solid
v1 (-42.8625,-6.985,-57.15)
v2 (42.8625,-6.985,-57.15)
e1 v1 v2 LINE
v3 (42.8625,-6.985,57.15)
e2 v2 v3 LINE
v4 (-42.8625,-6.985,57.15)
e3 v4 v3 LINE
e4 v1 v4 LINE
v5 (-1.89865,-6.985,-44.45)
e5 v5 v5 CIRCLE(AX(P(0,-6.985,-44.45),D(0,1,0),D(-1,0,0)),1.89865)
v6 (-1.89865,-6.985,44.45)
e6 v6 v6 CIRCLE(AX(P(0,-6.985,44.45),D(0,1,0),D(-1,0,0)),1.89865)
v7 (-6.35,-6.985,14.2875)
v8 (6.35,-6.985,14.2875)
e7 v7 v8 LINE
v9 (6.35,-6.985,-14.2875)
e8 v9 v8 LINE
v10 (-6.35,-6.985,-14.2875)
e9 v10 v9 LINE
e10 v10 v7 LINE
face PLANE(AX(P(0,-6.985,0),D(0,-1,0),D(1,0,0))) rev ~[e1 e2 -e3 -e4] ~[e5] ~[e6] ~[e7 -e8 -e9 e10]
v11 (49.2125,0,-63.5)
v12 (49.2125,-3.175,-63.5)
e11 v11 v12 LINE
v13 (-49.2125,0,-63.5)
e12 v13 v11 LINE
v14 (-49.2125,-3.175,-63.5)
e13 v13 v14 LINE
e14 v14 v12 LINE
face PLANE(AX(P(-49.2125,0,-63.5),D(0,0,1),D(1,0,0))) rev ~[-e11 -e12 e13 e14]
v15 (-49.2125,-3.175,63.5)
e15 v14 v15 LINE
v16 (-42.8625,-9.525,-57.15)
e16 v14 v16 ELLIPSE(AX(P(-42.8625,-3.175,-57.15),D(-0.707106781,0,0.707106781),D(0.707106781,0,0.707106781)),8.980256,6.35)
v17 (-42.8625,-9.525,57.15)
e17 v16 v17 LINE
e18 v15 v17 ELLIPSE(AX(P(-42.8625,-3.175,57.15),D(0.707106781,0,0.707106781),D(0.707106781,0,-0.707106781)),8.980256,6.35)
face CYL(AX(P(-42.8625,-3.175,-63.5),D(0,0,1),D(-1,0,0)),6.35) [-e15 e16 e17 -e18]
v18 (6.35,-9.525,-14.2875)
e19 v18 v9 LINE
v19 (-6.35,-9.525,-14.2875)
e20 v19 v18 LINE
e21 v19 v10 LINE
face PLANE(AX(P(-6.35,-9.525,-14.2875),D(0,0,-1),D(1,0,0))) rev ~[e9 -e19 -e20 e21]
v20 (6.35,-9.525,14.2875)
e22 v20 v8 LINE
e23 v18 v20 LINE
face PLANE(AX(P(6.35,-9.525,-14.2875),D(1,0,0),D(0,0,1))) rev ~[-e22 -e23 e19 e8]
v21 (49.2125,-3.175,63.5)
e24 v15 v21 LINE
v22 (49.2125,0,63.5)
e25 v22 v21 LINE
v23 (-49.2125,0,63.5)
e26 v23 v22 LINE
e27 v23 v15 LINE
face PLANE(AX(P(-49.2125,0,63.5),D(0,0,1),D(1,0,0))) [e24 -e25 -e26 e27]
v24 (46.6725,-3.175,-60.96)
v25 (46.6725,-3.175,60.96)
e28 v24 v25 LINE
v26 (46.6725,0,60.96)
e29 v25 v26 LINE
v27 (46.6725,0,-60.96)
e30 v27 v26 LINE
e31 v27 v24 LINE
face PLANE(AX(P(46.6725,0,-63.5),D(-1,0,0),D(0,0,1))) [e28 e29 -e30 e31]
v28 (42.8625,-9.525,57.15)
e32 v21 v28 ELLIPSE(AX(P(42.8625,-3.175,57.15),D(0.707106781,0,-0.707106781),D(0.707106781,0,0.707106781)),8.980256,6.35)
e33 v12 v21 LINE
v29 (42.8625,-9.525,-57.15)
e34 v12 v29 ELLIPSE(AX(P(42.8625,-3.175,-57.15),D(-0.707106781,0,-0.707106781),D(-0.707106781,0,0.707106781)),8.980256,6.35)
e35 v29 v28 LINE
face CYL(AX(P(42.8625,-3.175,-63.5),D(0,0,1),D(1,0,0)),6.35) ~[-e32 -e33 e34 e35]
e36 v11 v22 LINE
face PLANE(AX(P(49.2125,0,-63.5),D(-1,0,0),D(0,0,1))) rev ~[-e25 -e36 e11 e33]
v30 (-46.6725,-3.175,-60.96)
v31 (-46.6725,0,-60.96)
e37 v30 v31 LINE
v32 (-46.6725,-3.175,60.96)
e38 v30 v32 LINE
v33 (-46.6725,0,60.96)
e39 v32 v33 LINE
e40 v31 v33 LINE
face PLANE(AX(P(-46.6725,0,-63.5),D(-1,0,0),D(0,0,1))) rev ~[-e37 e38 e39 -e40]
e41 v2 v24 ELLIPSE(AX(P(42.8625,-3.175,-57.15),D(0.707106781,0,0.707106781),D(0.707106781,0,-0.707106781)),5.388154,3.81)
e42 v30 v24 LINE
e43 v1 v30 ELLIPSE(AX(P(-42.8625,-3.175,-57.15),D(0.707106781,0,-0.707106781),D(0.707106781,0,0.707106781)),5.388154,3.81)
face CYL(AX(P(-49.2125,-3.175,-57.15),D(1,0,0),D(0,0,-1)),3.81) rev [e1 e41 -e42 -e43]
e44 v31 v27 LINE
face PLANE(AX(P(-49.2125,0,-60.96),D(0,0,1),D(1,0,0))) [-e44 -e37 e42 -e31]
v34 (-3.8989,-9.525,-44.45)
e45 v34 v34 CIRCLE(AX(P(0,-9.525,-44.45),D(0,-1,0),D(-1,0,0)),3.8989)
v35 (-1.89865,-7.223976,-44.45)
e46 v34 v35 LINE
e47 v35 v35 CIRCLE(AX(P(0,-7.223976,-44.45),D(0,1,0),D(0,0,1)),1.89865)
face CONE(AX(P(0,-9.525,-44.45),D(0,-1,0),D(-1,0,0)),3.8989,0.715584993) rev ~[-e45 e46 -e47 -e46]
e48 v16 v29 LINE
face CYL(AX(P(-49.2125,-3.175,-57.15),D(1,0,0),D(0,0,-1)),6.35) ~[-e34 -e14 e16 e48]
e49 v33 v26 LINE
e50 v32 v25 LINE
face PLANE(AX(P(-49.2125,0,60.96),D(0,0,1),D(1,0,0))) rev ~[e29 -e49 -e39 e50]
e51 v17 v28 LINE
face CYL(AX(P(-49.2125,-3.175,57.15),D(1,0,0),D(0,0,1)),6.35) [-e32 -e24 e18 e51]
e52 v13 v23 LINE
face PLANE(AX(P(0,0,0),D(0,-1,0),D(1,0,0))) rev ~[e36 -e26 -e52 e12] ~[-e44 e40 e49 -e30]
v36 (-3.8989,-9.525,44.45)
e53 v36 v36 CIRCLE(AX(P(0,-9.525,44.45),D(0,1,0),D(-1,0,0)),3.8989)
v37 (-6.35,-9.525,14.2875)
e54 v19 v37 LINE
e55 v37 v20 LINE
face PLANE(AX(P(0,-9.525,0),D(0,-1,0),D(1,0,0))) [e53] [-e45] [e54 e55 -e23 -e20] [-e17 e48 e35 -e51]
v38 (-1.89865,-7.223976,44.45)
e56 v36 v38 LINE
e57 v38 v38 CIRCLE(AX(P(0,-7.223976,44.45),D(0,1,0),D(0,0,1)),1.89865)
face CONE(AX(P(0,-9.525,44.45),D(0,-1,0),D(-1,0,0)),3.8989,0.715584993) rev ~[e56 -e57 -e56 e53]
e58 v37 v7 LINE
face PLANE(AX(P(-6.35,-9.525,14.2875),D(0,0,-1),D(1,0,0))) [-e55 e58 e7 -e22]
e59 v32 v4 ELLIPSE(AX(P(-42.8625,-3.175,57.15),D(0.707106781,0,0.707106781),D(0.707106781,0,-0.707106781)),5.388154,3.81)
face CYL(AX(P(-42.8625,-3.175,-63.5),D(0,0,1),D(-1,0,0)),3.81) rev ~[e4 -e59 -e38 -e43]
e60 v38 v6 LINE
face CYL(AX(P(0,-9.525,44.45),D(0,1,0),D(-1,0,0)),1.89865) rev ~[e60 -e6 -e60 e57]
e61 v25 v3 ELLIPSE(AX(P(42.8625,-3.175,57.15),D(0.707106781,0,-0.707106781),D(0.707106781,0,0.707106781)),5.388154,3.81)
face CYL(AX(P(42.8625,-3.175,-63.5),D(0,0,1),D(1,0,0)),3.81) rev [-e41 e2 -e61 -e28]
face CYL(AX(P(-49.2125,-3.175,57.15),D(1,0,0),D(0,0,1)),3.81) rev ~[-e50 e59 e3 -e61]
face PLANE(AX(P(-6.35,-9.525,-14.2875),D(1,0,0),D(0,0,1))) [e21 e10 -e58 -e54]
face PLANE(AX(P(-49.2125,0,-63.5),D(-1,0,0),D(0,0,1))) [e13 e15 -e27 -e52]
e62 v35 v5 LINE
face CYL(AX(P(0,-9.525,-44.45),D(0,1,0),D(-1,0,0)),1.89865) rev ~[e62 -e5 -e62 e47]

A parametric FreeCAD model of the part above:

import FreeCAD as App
import Part
import Sketcher

V = App.Vector
Q = App.Units.Quantity


def edges_at(feature, points):
    """Names of the edges that pass closest to the given points."""
    edges = feature.Shape.Edges
    near = lambda p: min(range(len(edges)), key=lambda i: edges[i].distToShape(Part.Vertex(*p))[0])
    return sorted({f"Edge{near(p) + 1}" for p in points})


def faces_at(feature, points):
    """Names of the faces that lie closest to the given points."""
    faces = feature.Shape.Faces
    near = lambda p: min(range(len(faces)), key=lambda i: faces[i].distToShape(Part.Vertex(*p))[0])
    return sorted({f"Face{near(p) + 1}" for p in points})

doc = App.newDocument("Part")
body = doc.addObject("PartDesign::Body", "Body")

sketch1 = doc.addObject("Sketcher::SketchObject", "Sketch")
body.addObject(sketch1)
sketch1.AttachmentSupport = (doc.XZ_Plane, [""])
sketch1.MapMode = "FlatFace"
sketch1.addGeometry(Part.LineSegment(V(-49.2125, 63.5, 0), V(-49.2125, -63.5, 0)), False)
sketch1.addGeometry(Part.LineSegment(V(-49.2125, -63.5, 0), V(49.2125, -63.5, 0)), False)
sketch1.addGeometry(Part.LineSegment(V(49.2125, -63.5, 0), V(49.2125, 63.5, 0)), False)
sketch1.addGeometry(Part.LineSegment(V(49.2125, 63.5, 0), V(-49.2125, 63.5, 0)), False)
sketch1.addConstraint(Sketcher.Constraint("Coincident", 0, 2, 1, 1))
sketch1.addConstraint(Sketcher.Constraint("Coincident", 1, 2, 2, 1))
sketch1.addConstraint(Sketcher.Constraint("Coincident", 2, 2, 3, 1))
sketch1.addConstraint(Sketcher.Constraint("Coincident", 3, 2, 0, 1))
sketch1.addConstraint(Sketcher.Constraint("Vertical", 0))
sketch1.addConstraint(Sketcher.Constraint("Horizontal", 1))
sketch1.addConstraint(Sketcher.Constraint("Vertical", 2))
sketch1.addConstraint(Sketcher.Constraint("Horizontal", 3))
sketch1.addConstraint(Sketcher.Constraint("Symmetric", 0, 2, 2, 2, -1, 1))
sketch1.addConstraint(Sketcher.Constraint("DistanceY", 0, 2, 0, 1, Q("5 in")))
sketch1.addConstraint(Sketcher.Constraint("DistanceX", 1, 1, 1, 2, Q("3.875 in")))
pad1 = doc.addObject("PartDesign::Pad", "Pad")
body.addObject(pad1)
pad1.Profile = sketch1
pad1.Length = Q("0.375 in")
doc.recompute()

fillet = doc.addObject("PartDesign::Fillet", "Fillet")
body.addObject(fillet)
fillet.Base = (pad1, edges_at(pad1, [
    (49.212, -9.525, 0),
    (0, -9.525, 63.5),
    (-49.212, -9.525, 0),
    (0, -9.525, -63.5),
]))
fillet.Radius = Q("0.25 in")
doc.recompute()

thickness = doc.addObject("PartDesign::Thickness", "Thickness")
body.addObject(thickness)
thickness.Base = (fillet, faces_at(fillet, [(0, 0, 0)]))
thickness.Value = Q("0.1 in")
thickness.Reversed = True
thickness.Join = "Arc"

sketch2 = doc.addObject("Sketcher::SketchObject", "Sketch001")
body.addObject(sketch2)
sketch2.AttachmentSupport = (doc.XZ_Plane, [""])
sketch2.MapMode = "FlatFace"
sketch2.AttachmentOffset = App.Placement(V(0, 0, 0.375 * 25.4), App.Rotation())
sketch2.addGeometry(Part.LineSegment(V(-6.35, 14.2875, 0), V(-6.35, -14.2875, 0)), False)
sketch2.addGeometry(Part.LineSegment(V(-6.35, -14.2875, 0), V(6.35, -14.2875, 0)), False)
sketch2.addGeometry(Part.LineSegment(V(6.35, -14.2875, 0), V(6.35, 14.2875, 0)), False)
sketch2.addGeometry(Part.LineSegment(V(6.35, 14.2875, 0), V(-6.35, 14.2875, 0)), False)
sketch2.addConstraint(Sketcher.Constraint("Coincident", 0, 2, 1, 1))
sketch2.addConstraint(Sketcher.Constraint("Coincident", 1, 2, 2, 1))
sketch2.addConstraint(Sketcher.Constraint("Coincident", 2, 2, 3, 1))
sketch2.addConstraint(Sketcher.Constraint("Coincident", 3, 2, 0, 1))
sketch2.addConstraint(Sketcher.Constraint("Vertical", 0))
sketch2.addConstraint(Sketcher.Constraint("Horizontal", 1))
sketch2.addConstraint(Sketcher.Constraint("Vertical", 2))
sketch2.addConstraint(Sketcher.Constraint("Horizontal", 3))
sketch2.addConstraint(Sketcher.Constraint("Symmetric", 0, 2, 2, 2, -1, 1))
sketch2.addConstraint(Sketcher.Constraint("DistanceX", 1, 1, 1, 2, Q("0.5 in")))
sketch2.addConstraint(Sketcher.Constraint("DistanceY", 0, 2, 0, 1, Q("1.125 in")))
pocket1 = doc.addObject("PartDesign::Pocket", "Pocket")
body.addObject(pocket1)
pocket1.Profile = sketch2
pocket1.Type = "ThroughAll"

sketch3 = doc.addObject("Sketcher::SketchObject", "Sketch002")
body.addObject(sketch3)
sketch3.AttachmentSupport = (doc.XZ_Plane, [""])
sketch3.MapMode = "FlatFace"
sketch3.AttachmentOffset = App.Placement(V(0, 0, 0.375 * 25.4), App.Rotation())
sketch3.addGeometry(Part.Circle(V(0, 44.45, 0), V(0, 0, 1), 1.89865), False)
sketch3.addGeometry(Part.Circle(V(0, -44.45, 0), V(0, 0, 1), 1.89865), False)
sketch3.addConstraint(Sketcher.Constraint("Equal", 0, 1))
sketch3.addConstraint(Sketcher.Constraint("Symmetric", 0, 3, 1, 3, -1, 1))
sketch3.addConstraint(Sketcher.Constraint("PointOnObject", 0, 3, -2))
sketch3.addConstraint(Sketcher.Constraint("Diameter", 0, Q("0.1495 in")))
sketch3.addConstraint(Sketcher.Constraint("DistanceY", 1, 3, 0, 3, Q("3.5 in")))
doc.recompute()
hole = doc.addObject("PartDesign::Hole", "Hole")
body.addObject(hole)
hole.Profile = sketch3
hole.ThreadType = "None"
hole.Diameter = Q("0.1495 in")
hole.DepthType = "Dimension"
hole.Depth = Q("0.5 in")
hole.DrillPoint = "Angled"
hole.DrillPointAngle = 118
hole.HoleCutType = "Countersink"
hole.HoleCutDiameter = Q("0.307 in")
hole.HoleCutCountersinkAngle = 82

doc.recompute()
